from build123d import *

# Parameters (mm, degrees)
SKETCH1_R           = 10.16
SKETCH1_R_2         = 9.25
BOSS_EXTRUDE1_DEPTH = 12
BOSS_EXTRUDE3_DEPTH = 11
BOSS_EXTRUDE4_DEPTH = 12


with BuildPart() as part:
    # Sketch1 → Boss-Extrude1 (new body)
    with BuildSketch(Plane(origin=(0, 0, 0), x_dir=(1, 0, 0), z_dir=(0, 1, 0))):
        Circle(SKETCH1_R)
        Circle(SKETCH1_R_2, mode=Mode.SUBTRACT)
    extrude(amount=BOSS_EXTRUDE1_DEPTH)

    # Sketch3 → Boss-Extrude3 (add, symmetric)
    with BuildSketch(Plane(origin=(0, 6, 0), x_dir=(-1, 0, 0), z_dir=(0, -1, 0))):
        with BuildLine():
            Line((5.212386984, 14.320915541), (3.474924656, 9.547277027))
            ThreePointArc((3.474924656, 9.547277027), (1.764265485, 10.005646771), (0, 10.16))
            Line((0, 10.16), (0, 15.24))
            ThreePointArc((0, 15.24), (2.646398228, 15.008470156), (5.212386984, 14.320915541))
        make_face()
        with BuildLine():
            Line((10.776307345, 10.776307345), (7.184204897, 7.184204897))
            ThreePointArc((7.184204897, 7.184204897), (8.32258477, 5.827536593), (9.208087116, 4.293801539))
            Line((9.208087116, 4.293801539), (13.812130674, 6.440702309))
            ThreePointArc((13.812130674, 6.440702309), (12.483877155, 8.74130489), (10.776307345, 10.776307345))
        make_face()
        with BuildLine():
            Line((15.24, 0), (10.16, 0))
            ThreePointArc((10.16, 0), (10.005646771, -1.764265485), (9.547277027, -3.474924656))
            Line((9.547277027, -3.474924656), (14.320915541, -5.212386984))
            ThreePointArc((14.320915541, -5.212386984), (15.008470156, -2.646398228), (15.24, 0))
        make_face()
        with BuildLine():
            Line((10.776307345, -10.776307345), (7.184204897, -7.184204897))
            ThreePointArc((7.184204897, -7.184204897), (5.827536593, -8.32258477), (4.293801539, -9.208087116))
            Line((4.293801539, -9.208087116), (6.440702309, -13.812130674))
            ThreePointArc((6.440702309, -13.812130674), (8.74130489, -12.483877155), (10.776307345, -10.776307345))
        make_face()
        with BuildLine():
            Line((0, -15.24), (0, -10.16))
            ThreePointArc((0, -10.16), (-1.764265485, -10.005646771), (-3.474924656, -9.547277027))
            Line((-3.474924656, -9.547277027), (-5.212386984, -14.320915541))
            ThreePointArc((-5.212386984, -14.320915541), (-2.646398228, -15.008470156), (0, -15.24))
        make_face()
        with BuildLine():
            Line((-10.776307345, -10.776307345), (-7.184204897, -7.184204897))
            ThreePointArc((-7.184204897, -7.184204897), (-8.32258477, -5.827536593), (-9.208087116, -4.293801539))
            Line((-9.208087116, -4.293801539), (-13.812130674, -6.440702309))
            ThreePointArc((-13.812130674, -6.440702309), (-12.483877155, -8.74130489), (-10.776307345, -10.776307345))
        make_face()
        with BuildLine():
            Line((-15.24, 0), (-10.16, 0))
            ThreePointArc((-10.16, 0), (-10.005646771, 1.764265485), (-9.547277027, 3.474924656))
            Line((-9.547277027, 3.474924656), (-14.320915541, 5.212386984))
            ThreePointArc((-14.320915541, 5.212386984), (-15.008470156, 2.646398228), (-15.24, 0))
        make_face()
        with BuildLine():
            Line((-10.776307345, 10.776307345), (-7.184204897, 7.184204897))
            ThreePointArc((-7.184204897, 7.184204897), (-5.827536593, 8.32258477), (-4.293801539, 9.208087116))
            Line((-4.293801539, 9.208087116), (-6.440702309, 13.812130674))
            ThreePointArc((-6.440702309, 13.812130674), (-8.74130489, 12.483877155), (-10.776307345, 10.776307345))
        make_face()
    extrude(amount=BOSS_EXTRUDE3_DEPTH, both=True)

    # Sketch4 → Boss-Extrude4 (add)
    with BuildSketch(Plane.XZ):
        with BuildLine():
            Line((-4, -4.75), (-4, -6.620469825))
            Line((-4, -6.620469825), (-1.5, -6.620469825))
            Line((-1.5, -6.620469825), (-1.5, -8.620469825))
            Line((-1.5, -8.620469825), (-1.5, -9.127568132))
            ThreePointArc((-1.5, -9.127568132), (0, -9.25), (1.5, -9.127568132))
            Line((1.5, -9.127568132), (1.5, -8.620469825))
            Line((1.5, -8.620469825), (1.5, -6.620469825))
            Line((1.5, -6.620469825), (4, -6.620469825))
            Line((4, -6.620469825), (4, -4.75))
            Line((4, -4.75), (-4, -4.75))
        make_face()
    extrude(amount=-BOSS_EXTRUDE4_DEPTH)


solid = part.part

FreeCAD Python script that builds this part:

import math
import FreeCAD as App
import Part
import Sketcher
Q = App.Units.Quantity

doc = App.newDocument("Part")
body = doc.addObject("PartDesign::Body", "Body")

sketch1 = body.newObject("Sketcher::SketchObject", "Sketch")
sketch1.AttachmentSupport = (doc.getObject("XZ_Plane"), [""])
sketch1.MapMode = "FlatFace"
sketch1.addGeometry([
    Part.Circle(App.Vector(0, 0, 0), App.Vector(0, 0, 1), 10),
    Part.Circle(App.Vector(0, 0, 0), App.Vector(0, 0, 1), 9),
], False)
sketch1.addConstraint([
    Sketcher.Constraint("Coincident", 0, 3, -1, 1),
    Sketcher.Constraint("Coincident", 1, 3, -1, 1),
    Sketcher.Constraint("Diameter", 1, Q("18.5 mm")),
    Sketcher.Constraint("Diameter", 0, Q("20.32 mm")),
])
pad1 = body.newObject("PartDesign::Pad", "Pad")
pad1.Profile = sketch1
pad1.Length = 12
pad1.Reversed = True

sketch2 = body.newObject("Sketcher::SketchObject", "Sketch001")
sketch2.AttachmentSupport = (doc.getObject("XZ_Plane"), [""])
sketch2.MapMode = "FlatFace"
sketch2.AttachmentOffset = App.Placement(App.Vector(0, 0, -6), App.Rotation())
sketch2.addGeometry([
    Part.LineSegment(App.Vector(-3.5, -9.5, 0), App.Vector(-5.2, -14.3, 0)),
    Part.ArcOfCircle(Part.Circle(App.Vector(0, 0, 0), App.Vector(0, 0, 1), 15.2), math.radians(-110), math.radians(-90)),
    Part.LineSegment(App.Vector(0, -15.2, 0), App.Vector(0, -10.2, 0)),
    Part.ArcOfCircle(Part.Circle(App.Vector(0, 0, 0), App.Vector(0, 0, 1), 10.2), math.radians(-110), math.radians(-90)),
    Part.LineSegment(App.Vector(-10.8, -10.8, 0), App.Vector(-7.2, -7.2, 0)),
    Part.ArcOfCircle(Part.Circle(App.Vector(0, 0, 0), App.Vector(0, 0, 1), 10.2), math.radians(-155), math.radians(-135)),
    Part.LineSegment(App.Vector(-9.2, -4.3, 0), App.Vector(-13.8, -6.4, 0)),
    Part.ArcOfCircle(Part.Circle(App.Vector(0, 0, 0), App.Vector(0, 0, 1), 15.2), math.radians(-155), math.radians(-135)),
    Part.LineSegment(App.Vector(-15.2, 0, 0), App.Vector(-10.2, 0, 0)),
    Part.ArcOfCircle(Part.Circle(App.Vector(0, 0, 0), App.Vector(0, 0, 1), 10.2), math.radians(160), math.radians(180)),
    Part.LineSegment(App.Vector(-9.5, 3.5, 0), App.Vector(-14.3, 5.2, 0)),
    Part.ArcOfCircle(Part.Circle(App.Vector(0, 0, 0), App.Vector(0, 0, 1), 15.2), math.radians(160), math.radians(180)),
    Part.LineSegment(App.Vector(-10.8, 10.8, 0), App.Vector(-7.2, 7.2, 0)),
    Part.ArcOfCircle(Part.Circle(App.Vector(0, 0, 0), App.Vector(0, 0, 1), 10.2), math.radians(115), math.radians(135)),
    Part.LineSegment(App.Vector(-4.3, 9.2, 0), App.Vector(-6.4, 13.8, 0)),
    Part.ArcOfCircle(Part.Circle(App.Vector(0, 0, 0), App.Vector(0, 0, 1), 15.2), math.radians(115), math.radians(135)),
    Part.LineSegment(App.Vector(0, 15.2, 0), App.Vector(0, 10.2, 0)),
    Part.ArcOfCircle(Part.Circle(App.Vector(0, 0, 0), App.Vector(0, 0, 1), 10.2), math.radians(70), math.radians(90)),
    Part.LineSegment(App.Vector(3.5, 9.5, 0), App.Vector(5.2, 14.3, 0)),
    Part.ArcOfCircle(Part.Circle(App.Vector(0, 0, 0), App.Vector(0, 0, 1), 15.2), math.radians(70), math.radians(90)),
    Part.LineSegment(App.Vector(10.8, 10.8, 0), App.Vector(7.2, 7.2, 0)),
    Part.ArcOfCircle(Part.Circle(App.Vector(0, 0, 0), App.Vector(0, 0, 1), 10.2), math.radians(25), math.radians(45)),
    Part.LineSegment(App.Vector(9.2, 4.3, 0), App.Vector(13.8, 6.4, 0)),
    Part.ArcOfCircle(Part.Circle(App.Vector(0, 0, 0), App.Vector(0, 0, 1), 15.2), math.radians(25), math.radians(45)),
    Part.LineSegment(App.Vector(15.2, 0, 0), App.Vector(10.2, 0, 0)),
    Part.ArcOfCircle(Part.Circle(App.Vector(0, 0, 0), App.Vector(0, 0, 1), 10.2), math.radians(-20), math.radians(0)),
    Part.LineSegment(App.Vector(9.5, -3.5, 0), App.Vector(14.3, -5.2, 0)),
    Part.ArcOfCircle(Part.Circle(App.Vector(0, 0, 0), App.Vector(0, 0, 1), 15.2), math.radians(-20), math.radians(0)),
    Part.LineSegment(App.Vector(10.8, -10.8, 0), App.Vector(7.2, -7.2, 0)),
    Part.ArcOfCircle(Part.Circle(App.Vector(0, 0, 0), App.Vector(0, 0, 1), 10.2), math.radians(-65), math.radians(-45)),
    Part.LineSegment(App.Vector(4.3, -9.2, 0), App.Vector(6.4, -13.8, 0)),
    Part.ArcOfCircle(Part.Circle(App.Vector(0, 0, 0), App.Vector(0, 0, 1), 15.2), math.radians(-65), math.radians(-45)),
], False)
sketch2.addConstraint([
    Sketcher.Constraint("Coincident", 0, 2, 1, 1),
    Sketcher.Constraint("Coincident", 1, 2, 2, 1),
    Sketcher.Constraint("Coincident", 2, 2, 3, 2),
    Sketcher.Constraint("Coincident", 3, 1, 0, 1),
    Sketcher.Constraint("Coincident", 4, 2, 5, 2),
    Sketcher.Constraint("Coincident", 5, 1, 6, 1),
    Sketcher.Constraint("Coincident", 6, 2, 7, 1),
    Sketcher.Constraint("Coincident", 7, 2, 4, 1),
    Sketcher.Constraint("Coincident", 8, 2, 9, 2),
    Sketcher.Constraint("Coincident", 9, 1, 10, 1),
    Sketcher.Constraint("Coincident", 10, 2, 11, 1),
    Sketcher.Constraint("Coincident", 11, 2, 8, 1),
    Sketcher.Constraint("Coincident", 12, 2, 13, 2),
    Sketcher.Constraint("Coincident", 13, 1, 14, 1),
    Sketcher.Constraint("Coincident", 14, 2, 15, 1),
    Sketcher.Constraint("Coincident", 15, 2, 12, 1),
    Sketcher.Constraint("Coincident", 16, 2, 17, 2),
    Sketcher.Constraint("Coincident", 17, 1, 18, 1),
    Sketcher.Constraint("Coincident", 18, 2, 19, 1),
    Sketcher.Constraint("Coincident", 19, 2, 16, 1),
    Sketcher.Constraint("Coincident", 20, 2, 21, 2),
    Sketcher.Constraint("Coincident", 21, 1, 22, 1),
    Sketcher.Constraint("Coincident", 22, 2, 23, 1),
    Sketcher.Constraint("Coincident", 23, 2, 20, 1),
    Sketcher.Constraint("Coincident", 24, 2, 25, 2),
    Sketcher.Constraint("Coincident", 25, 1, 26, 1),
    Sketcher.Constraint("Coincident", 26, 2, 27, 1),
    Sketcher.Constraint("Coincident", 27, 2, 24, 1),
    Sketcher.Constraint("Coincident", 28, 2, 29, 2),
    Sketcher.Constraint("Coincident", 29, 1, 30, 1),
    Sketcher.Constraint("Coincident", 30, 2, 31, 1),
    Sketcher.Constraint("Coincident", 31, 2, 28, 1),
    Sketcher.Constraint("Vertical", 2),
    Sketcher.Constraint("Horizontal", 8),
    Sketcher.Constraint("Vertical", 16),
    Sketcher.Constraint("Horizontal", 24),
    Sketcher.Constraint("Coincident", 1, 3, -1, 1),
    Sketcher.Constraint("Coincident", 3, 3, -1, 1),
    Sketcher.Constraint("Coincident", 5, 3, -1, 1),
    Sketcher.Constraint("Coincident", 7, 3, -1, 1),
    Sketcher.Constraint("Coincident", 9, 3, -1, 1),
    Sketcher.Constraint("Coincident", 11, 3, -1, 1),
    Sketcher.Constraint("Coincident", 13, 3, -1, 1),
    Sketcher.Constraint("Coincident", 15, 3, -1, 1),
    Sketcher.Constraint("Coincident", 17, 3, -1, 1),
    Sketcher.Constraint("Coincident", 19, 3, -1, 1),
    Sketcher.Constraint("Coincident", 21, 3, -1, 1),
    Sketcher.Constraint("Coincident", 23, 3, -1, 1),
    Sketcher.Constraint("Coincident", 25, 3, -1, 1),
    Sketcher.Constraint("Coincident", 27, 3, -1, 1),
    Sketcher.Constraint("Coincident", 29, 3, -1, 1),
    Sketcher.Constraint("Coincident", 31, 3, -1, 1),
    Sketcher.Constraint("Equal", 3, 5),
    Sketcher.Constraint("Equal", 1, 7),
    Sketcher.Constraint("Equal", 5, 9),
    Sketcher.Constraint("Equal", 7, 11),
    Sketcher.Constraint("Equal", 9, 13),
    Sketcher.Constraint("Equal", 11, 15),
    Sketcher.Constraint("Equal", 13, 17),
    Sketcher.Constraint("Equal", 15, 19),
    Sketcher.Constraint("Equal", 17, 21),
    Sketcher.Constraint("Equal", 19, 23),
    Sketcher.Constraint("Equal", 21, 25),
    Sketcher.Constraint("Equal", 23, 27),
    Sketcher.Constraint("Equal", 25, 29),
    Sketcher.Constraint("Equal", 27, 31),
    Sketcher.Constraint("PointOnObject", 1, 2, -2),
    Sketcher.Constraint("PointOnObject", 8, 2, -1),
    Sketcher.Constraint("PointOnObject", 16, 2, -2),
    Sketcher.Constraint("PointOnObject", 24, 2, -1),
    Sketcher.Constraint("Perpendicular", 0, 10),
    Sketcher.Constraint("Perpendicular", 4, 12),
    Sketcher.Constraint("Perpendicular", 6, 14),
    Sketcher.Constraint("Perpendicular", 10, 18),
    Sketcher.Constraint("Perpendicular", 12, 20),
    Sketcher.Constraint("Perpendicular", 14, 22),
    Sketcher.Constraint("Perpendicular", 18, 26),
    Sketcher.Constraint("Perpendicular", 20, 28),
    Sketcher.Constraint("Perpendicular", 22, 30),
    Sketcher.Constraint("Horizontal", 12, 2, 20, 2),
    Sketcher.Constraint("Horizontal", 15, 2, 23, 2),
    Sketcher.Constraint("Horizontal", 4, 2, 28, 2),
    Sketcher.Constraint("Vertical", 4, 2, 12, 2),
    Sketcher.Constraint("Angle", 0, Q("-110 deg")),
    Sketcher.Constraint("Angle", 6, Q("-155 deg")),
    Sketcher.Constraint("Radius", 1, Q("15.24 mm")),
    Sketcher.Constraint("Radius", 3, Q("10.16 mm")),
    Sketcher.Constraint("DistanceY", 5, 1, -1, 1, Q("4.293802 mm")),
    Sketcher.Constraint("DistanceX", 13, 1, -1, 1, Q("4.293802 mm")),
    Sketcher.Constraint("DistanceY", -1, 1, 21, 1, Q("4.293802 mm")),
    Sketcher.Constraint("DistanceX", -1, 1, 29, 1, Q("4.293802 mm")),
    Sketcher.Constraint("DistanceX", 4, 2, 3, 1, Q("3.70928 mm")),
    Sketcher.Constraint("DistanceY", 0, 2, 4, 2, Q("7.136711 mm")),
    Sketcher.Constraint("DistanceX", 9, 1, 5, 1, Q("0.33919 mm")),
    Sketcher.Constraint("DistanceY", 13, 1, 17, 1, Q("0.33919 mm")),
    Sketcher.Constraint("DistanceX", 21, 1, 25, 1, Q("0.33919 mm")),
])
pad2 = body.newObject("PartDesign::Pad", "Pad001")
pad2.Profile = sketch2
pad2.Length = 22
pad2.Midplane = True

sketch3 = body.newObject("Sketcher::SketchObject", "Sketch002")
sketch3.AttachmentSupport = (doc.getObject("XZ_Plane"), [""])
sketch3.MapMode = "FlatFace"
sketch3.addGeometry([
    Part.LineSegment(App.Vector(-4, -4.8, 0), App.Vector(-4, -6.6, 0)),
    Part.LineSegment(App.Vector(-4, -6.6, 0), App.Vector(-1.5, -6.6, 0)),
    Part.LineSegment(App.Vector(-1.5, -6.6, 0), App.Vector(-1.5, -9.1, 0)),
    Part.ArcOfCircle(Part.Circle(App.Vector(0, 0, 0), App.Vector(0, 0, 1), 9.3), math.radians(-99.33), math.radians(-80.67)),
    Part.LineSegment(App.Vector(1.5, -9.1, 0), App.Vector(1.5, -6.6, 0)),
    Part.LineSegment(App.Vector(1.5, -6.6, 0), App.Vector(4, -6.6, 0)),
    Part.LineSegment(App.Vector(4, -6.6, 0), App.Vector(4, -4.8, 0)),
    Part.LineSegment(App.Vector(4, -4.8, 0), App.Vector(-4, -4.8, 0)),
], False)
sketch3.addConstraint([
    Sketcher.Constraint("Coincident", 0, 2, 1, 1),
    Sketcher.Constraint("Coincident", 1, 2, 2, 1),
    Sketcher.Constraint("Coincident", 2, 2, 3, 1),
    Sketcher.Constraint("Coincident", 3, 2, 4, 1),
    Sketcher.Constraint("Coincident", 4, 2, 5, 1),
    Sketcher.Constraint("Coincident", 5, 2, 6, 1),
    Sketcher.Constraint("Coincident", 6, 2, 7, 1),
    Sketcher.Constraint("Coincident", 7, 2, 0, 1),
    Sketcher.Constraint("Vertical", 0),
    Sketcher.Constraint("Horizontal", 1),
    Sketcher.Constraint("Vertical", 2),
    Sketcher.Constraint("Vertical", 4),
    Sketcher.Constraint("Horizontal", 5),
    Sketcher.Constraint("Vertical", 6),
    Sketcher.Constraint("Horizontal", 7),
    Sketcher.Constraint("Coincident", 3, 3, -1, 1),
    Sketcher.Constraint("Symmetric", 1, 2, 4, 2, -2),
    Sketcher.Constraint("Equal", 1, 5),
    Sketcher.Constraint("DistanceX", 7, 2, 7, 1, Q("8 mm")),
    Sketcher.Constraint("Radius", 3, Q("9.25 mm")),
    Sketcher.Constraint("DistanceX", 1, 1, 1, 2, Q("2.5 mm")),
    Sketcher.Constraint("DistanceY", 6, 2, -1, 1, Q("4.75 mm")),
    Sketcher.Constraint("DistanceY", 2, 2, 2, 1, Q("2.507098 mm")),
])
pad3 = body.newObject("PartDesign::Pad", "Pad002")
pad3.Profile = sketch3
pad3.Length = 12
pad3.Reversed = True

doc.recompute()
